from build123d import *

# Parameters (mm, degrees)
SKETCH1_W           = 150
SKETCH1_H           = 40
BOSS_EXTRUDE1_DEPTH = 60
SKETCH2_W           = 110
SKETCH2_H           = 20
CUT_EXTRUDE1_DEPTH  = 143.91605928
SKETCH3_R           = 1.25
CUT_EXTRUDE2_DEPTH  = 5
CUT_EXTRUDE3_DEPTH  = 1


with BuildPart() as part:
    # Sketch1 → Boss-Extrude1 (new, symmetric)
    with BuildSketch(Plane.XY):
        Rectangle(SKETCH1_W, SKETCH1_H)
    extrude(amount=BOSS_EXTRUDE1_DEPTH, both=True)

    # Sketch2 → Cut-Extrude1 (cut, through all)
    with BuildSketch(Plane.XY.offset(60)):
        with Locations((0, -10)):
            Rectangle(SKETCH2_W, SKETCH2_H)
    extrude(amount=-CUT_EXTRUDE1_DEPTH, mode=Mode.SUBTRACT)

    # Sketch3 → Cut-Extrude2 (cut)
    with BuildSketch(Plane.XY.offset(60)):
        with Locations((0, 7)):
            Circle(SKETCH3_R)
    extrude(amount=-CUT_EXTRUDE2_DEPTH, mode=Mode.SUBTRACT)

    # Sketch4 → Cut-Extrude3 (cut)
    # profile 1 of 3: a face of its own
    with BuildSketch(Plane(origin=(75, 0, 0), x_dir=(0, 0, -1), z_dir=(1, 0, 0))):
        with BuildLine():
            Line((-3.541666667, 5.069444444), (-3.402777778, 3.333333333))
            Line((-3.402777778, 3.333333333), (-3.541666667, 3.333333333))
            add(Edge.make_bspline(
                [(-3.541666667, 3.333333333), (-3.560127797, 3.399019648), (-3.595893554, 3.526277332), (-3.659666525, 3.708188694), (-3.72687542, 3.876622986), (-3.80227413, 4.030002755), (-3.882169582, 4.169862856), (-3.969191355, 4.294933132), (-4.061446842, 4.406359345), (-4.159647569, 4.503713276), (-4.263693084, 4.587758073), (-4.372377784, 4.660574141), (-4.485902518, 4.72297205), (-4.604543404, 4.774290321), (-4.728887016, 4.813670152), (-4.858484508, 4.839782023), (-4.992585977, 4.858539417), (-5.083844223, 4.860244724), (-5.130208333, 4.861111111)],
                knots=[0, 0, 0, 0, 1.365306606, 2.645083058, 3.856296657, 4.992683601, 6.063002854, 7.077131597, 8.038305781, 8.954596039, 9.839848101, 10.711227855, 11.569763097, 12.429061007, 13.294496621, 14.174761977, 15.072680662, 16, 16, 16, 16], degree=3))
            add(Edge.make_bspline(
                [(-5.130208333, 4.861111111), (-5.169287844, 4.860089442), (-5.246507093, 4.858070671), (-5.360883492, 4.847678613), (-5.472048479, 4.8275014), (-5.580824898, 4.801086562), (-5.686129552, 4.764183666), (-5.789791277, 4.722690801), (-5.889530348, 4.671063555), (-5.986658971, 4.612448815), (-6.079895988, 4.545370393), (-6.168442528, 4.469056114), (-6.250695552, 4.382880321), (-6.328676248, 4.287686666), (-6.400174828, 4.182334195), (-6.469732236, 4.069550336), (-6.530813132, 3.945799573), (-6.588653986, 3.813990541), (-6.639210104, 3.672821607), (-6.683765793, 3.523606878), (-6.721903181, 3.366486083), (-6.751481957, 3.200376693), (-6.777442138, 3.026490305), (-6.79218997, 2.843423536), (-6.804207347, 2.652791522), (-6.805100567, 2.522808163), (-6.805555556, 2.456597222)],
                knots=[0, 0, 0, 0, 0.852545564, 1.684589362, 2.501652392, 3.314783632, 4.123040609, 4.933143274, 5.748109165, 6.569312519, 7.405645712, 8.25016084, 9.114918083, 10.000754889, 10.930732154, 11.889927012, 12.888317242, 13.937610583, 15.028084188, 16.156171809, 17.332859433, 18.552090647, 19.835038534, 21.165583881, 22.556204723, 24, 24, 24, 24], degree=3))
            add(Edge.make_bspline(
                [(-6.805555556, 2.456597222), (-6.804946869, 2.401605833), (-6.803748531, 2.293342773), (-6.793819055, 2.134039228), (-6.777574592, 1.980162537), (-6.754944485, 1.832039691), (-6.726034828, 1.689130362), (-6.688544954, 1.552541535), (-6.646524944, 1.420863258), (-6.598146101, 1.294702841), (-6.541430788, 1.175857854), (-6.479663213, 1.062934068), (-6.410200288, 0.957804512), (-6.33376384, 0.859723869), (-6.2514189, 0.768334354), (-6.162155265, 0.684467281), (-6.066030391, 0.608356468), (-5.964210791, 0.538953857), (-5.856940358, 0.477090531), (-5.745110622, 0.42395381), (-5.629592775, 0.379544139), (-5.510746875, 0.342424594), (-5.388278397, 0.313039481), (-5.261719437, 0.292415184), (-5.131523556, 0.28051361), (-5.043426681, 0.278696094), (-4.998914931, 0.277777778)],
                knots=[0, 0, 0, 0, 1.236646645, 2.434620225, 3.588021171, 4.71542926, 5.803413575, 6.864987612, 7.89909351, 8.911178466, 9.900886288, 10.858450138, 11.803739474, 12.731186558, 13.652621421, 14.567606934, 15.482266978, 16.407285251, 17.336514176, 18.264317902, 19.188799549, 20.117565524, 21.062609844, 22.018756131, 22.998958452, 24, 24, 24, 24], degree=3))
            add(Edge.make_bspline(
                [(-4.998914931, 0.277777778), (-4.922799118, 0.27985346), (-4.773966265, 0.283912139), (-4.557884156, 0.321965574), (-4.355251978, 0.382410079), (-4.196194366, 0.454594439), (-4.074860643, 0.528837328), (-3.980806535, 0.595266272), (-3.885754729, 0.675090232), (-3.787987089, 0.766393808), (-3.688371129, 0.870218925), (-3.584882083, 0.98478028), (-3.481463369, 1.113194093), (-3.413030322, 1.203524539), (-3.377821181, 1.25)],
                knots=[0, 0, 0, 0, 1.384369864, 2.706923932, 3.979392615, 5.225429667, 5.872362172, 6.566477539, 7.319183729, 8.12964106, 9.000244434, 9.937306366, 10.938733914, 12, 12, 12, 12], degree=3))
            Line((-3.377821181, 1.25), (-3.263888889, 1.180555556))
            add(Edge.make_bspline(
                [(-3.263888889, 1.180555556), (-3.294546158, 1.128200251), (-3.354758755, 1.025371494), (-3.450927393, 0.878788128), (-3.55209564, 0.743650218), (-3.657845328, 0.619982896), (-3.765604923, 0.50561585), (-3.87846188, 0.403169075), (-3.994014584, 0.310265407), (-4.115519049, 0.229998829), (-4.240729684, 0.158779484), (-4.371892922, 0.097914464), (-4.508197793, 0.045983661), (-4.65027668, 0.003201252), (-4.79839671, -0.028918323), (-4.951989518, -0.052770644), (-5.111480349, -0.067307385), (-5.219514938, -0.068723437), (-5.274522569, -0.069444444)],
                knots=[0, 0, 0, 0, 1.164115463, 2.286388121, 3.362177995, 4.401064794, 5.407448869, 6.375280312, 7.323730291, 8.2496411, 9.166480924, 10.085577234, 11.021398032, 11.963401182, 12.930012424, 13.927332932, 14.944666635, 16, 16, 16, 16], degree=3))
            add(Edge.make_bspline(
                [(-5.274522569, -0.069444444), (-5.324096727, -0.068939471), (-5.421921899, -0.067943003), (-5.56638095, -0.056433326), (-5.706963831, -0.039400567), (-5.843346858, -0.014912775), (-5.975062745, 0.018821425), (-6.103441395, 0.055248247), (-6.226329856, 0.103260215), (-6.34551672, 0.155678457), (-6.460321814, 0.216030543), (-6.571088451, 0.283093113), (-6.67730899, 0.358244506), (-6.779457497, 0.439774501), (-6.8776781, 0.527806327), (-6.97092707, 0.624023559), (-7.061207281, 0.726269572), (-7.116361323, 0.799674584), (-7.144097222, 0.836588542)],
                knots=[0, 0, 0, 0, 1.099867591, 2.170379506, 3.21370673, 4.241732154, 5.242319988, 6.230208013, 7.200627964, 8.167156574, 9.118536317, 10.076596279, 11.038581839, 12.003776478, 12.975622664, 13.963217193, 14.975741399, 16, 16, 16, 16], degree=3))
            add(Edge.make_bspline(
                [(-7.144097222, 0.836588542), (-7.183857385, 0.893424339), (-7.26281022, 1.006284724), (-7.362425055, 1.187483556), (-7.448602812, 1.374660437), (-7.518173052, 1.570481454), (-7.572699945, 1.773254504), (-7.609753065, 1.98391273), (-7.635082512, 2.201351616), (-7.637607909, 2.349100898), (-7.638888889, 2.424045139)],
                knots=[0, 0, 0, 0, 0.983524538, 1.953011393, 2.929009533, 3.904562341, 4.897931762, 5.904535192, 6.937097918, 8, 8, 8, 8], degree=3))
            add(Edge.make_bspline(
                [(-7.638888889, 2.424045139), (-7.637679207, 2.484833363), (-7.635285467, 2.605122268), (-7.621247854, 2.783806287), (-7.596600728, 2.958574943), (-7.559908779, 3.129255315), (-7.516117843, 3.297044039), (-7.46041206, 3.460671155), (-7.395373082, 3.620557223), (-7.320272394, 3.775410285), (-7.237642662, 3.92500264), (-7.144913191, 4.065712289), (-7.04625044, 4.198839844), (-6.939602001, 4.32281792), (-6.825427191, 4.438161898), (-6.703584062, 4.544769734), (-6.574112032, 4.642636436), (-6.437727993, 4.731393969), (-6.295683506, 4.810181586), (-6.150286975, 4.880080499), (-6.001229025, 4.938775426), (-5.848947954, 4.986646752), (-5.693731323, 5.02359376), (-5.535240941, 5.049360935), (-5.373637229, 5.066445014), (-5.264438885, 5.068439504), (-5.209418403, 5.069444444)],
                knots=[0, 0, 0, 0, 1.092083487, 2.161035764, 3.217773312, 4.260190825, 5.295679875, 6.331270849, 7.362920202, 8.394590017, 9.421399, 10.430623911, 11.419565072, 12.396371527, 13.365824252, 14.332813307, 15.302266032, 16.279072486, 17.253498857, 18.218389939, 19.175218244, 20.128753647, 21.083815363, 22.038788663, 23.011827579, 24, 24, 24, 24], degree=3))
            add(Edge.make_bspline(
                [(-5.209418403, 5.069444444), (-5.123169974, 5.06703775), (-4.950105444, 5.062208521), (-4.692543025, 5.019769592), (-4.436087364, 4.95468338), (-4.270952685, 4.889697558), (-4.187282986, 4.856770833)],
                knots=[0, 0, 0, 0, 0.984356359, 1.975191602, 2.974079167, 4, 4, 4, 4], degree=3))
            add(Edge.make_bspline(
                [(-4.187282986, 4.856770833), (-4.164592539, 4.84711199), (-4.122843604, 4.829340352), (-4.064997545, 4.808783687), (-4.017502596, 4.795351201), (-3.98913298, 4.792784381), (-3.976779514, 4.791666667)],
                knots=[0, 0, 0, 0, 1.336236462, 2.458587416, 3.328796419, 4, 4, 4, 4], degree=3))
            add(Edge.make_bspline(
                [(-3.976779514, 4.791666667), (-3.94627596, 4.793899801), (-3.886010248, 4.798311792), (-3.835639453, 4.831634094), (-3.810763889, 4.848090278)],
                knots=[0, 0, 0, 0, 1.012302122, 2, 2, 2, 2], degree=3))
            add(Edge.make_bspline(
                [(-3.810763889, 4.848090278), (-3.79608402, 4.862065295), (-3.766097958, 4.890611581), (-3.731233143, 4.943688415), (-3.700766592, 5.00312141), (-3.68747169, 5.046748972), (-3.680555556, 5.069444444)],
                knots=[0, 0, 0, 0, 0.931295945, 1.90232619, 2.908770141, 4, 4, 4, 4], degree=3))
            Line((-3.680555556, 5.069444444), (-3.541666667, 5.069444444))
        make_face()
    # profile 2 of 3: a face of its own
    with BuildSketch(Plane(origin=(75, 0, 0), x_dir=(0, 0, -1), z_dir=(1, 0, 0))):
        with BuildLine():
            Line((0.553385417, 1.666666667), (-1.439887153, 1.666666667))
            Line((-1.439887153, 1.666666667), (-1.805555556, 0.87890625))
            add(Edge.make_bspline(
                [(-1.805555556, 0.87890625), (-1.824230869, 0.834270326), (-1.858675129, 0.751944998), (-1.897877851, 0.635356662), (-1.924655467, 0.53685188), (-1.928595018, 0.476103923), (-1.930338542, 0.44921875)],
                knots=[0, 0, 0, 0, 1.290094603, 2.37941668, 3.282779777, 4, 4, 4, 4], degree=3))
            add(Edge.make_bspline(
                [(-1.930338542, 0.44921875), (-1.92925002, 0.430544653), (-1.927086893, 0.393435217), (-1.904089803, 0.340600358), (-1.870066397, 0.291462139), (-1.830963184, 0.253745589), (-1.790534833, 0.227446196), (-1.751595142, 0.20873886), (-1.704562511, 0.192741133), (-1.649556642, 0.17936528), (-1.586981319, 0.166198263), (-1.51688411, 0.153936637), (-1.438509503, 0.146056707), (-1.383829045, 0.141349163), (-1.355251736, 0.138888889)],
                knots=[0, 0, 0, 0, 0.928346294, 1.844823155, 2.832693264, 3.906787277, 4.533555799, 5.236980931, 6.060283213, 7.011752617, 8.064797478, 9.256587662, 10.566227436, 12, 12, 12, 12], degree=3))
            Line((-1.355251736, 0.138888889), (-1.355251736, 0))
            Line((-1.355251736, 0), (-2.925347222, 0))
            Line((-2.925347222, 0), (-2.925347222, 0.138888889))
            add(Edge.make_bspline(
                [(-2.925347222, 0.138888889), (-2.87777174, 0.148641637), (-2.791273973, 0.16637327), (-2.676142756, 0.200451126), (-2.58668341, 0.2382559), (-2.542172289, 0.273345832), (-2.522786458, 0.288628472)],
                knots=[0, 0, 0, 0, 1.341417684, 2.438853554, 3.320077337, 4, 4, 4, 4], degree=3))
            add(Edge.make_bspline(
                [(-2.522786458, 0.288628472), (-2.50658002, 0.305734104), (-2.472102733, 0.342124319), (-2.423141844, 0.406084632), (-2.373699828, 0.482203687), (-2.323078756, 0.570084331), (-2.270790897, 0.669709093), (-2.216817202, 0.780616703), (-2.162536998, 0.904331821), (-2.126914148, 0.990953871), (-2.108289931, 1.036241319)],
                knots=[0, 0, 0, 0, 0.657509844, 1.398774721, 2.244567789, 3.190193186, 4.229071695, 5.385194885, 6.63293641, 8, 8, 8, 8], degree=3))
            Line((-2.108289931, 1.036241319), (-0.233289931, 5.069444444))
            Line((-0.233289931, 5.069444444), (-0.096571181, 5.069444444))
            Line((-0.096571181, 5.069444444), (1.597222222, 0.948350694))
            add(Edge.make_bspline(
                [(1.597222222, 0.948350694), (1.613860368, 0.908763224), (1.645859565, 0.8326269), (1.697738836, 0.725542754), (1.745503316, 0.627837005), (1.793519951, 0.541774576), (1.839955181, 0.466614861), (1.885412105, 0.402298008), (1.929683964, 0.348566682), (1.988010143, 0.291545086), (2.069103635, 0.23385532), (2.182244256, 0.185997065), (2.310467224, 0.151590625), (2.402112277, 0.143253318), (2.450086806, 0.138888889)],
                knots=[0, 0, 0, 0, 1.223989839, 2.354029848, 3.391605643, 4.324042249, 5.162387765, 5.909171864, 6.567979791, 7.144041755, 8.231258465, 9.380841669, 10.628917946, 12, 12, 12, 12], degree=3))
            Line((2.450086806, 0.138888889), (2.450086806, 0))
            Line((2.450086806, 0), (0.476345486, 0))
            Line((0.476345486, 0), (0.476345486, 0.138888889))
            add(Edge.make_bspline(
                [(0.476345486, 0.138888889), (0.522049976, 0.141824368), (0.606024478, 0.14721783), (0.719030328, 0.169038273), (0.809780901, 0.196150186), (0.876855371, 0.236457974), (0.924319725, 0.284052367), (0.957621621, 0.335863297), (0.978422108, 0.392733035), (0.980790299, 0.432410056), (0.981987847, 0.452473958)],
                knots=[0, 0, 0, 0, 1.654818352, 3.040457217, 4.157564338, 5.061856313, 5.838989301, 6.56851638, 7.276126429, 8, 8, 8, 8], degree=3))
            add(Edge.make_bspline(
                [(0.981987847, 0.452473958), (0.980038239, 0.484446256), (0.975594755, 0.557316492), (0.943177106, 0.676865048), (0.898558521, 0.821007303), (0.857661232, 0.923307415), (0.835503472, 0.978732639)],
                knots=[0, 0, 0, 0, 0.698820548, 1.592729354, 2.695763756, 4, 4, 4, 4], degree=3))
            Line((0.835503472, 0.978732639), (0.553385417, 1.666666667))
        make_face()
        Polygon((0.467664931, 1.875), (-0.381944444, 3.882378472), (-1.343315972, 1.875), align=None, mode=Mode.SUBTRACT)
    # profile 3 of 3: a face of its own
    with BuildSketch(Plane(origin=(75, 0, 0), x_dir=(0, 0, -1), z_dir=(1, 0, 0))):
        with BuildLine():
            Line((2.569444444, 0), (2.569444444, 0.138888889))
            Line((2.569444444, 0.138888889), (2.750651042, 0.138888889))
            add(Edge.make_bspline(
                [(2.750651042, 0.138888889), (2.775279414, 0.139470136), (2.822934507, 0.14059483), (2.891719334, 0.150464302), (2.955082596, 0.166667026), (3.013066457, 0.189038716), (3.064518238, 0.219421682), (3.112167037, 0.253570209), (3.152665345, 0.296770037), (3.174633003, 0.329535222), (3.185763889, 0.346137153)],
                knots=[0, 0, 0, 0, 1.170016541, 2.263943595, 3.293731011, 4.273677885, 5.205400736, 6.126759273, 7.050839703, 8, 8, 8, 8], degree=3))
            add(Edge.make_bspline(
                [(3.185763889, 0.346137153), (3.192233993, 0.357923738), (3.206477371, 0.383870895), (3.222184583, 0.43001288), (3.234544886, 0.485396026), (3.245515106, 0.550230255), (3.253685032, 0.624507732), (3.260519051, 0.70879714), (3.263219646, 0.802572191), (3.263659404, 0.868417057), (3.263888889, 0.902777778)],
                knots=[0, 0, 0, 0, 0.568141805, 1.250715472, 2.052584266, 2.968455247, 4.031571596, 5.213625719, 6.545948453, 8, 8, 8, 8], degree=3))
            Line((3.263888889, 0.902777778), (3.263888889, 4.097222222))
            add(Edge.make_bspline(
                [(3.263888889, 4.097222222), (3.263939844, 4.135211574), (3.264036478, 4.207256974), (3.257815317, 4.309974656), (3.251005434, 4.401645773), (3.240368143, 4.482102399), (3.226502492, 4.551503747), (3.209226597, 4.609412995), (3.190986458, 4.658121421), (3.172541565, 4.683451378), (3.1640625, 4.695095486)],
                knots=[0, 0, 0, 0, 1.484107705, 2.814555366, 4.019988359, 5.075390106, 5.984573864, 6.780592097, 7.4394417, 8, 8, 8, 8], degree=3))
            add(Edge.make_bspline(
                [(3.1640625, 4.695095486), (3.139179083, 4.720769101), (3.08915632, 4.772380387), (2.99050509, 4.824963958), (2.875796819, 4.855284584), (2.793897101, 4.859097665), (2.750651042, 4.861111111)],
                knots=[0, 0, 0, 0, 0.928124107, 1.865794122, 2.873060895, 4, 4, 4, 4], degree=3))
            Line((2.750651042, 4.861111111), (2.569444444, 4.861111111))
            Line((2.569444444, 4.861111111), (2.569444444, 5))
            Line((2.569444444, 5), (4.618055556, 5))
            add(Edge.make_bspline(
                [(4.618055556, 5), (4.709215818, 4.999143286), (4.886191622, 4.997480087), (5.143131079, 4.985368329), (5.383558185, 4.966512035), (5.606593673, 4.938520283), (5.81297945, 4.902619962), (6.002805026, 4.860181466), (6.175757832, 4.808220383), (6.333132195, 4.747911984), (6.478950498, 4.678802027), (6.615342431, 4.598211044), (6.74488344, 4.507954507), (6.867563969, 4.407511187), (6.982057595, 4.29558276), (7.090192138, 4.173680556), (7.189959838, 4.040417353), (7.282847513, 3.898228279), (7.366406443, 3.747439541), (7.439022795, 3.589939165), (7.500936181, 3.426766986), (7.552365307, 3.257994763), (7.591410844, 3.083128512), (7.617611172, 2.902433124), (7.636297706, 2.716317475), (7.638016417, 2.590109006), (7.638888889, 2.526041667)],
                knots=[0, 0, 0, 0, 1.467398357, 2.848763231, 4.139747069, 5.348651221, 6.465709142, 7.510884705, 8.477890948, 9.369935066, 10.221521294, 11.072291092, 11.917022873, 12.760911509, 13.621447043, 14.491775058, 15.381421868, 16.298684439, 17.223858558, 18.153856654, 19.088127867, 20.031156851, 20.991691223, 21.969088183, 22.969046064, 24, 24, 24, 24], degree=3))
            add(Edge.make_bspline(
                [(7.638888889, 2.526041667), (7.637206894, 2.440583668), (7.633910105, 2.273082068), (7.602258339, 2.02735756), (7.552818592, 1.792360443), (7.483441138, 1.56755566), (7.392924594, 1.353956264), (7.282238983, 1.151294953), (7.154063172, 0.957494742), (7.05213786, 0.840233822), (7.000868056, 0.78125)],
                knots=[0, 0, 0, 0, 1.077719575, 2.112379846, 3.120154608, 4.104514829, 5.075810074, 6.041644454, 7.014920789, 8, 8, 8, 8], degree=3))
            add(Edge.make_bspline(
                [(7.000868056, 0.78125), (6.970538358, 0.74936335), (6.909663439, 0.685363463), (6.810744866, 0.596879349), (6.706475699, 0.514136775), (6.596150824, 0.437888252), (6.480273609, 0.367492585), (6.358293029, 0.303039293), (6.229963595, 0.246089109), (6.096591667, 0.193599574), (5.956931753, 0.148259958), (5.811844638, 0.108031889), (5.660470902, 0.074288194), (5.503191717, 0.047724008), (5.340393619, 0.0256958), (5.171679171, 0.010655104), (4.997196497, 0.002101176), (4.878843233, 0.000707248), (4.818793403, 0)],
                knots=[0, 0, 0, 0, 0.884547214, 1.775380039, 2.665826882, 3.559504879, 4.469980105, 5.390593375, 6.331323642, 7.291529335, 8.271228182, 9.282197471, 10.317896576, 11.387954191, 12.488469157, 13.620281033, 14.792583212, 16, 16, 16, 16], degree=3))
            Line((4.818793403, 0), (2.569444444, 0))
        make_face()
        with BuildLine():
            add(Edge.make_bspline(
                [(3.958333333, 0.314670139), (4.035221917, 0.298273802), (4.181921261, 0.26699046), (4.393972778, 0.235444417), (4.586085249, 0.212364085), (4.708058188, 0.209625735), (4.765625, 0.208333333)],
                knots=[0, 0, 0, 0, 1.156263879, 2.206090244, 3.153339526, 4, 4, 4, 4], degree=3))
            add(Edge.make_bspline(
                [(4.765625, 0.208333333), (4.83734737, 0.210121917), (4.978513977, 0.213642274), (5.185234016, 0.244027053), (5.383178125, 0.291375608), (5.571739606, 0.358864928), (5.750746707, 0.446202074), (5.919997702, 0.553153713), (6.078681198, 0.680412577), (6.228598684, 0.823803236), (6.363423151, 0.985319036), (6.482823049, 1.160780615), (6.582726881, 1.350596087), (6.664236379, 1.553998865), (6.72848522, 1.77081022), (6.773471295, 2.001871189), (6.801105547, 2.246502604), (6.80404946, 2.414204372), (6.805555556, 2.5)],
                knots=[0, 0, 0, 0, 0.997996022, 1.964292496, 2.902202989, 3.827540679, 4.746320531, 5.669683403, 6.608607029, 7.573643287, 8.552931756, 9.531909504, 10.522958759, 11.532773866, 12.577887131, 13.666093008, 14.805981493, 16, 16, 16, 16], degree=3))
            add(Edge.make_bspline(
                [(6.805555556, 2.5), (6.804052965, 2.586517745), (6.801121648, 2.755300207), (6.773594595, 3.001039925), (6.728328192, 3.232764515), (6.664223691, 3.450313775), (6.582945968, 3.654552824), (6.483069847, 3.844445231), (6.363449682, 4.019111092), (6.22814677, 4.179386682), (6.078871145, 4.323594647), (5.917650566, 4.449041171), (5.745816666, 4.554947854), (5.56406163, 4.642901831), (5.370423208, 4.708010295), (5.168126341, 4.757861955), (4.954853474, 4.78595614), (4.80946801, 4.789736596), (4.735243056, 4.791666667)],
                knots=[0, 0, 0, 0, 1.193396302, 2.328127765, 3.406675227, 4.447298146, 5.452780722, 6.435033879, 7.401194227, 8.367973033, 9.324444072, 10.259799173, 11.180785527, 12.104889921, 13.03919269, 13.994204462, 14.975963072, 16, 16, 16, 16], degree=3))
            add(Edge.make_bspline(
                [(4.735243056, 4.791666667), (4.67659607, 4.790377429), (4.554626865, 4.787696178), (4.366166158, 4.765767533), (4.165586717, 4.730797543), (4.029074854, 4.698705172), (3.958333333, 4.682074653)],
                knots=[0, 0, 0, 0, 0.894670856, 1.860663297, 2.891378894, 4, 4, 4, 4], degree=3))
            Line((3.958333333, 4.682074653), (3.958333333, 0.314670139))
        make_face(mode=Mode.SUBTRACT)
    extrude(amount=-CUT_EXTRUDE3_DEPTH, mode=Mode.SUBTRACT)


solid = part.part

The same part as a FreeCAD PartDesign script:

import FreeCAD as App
import Part
import Sketcher
from FreeCAD import Vector

doc = App.newDocument("Part")
body = doc.addObject("PartDesign::Body", "Body")

# Sketch on XY plane
sketch1 = doc.addObject("Sketcher::SketchObject", "Sketch")
body.addObject(sketch1)
sketch1.AttachmentSupport = (doc.XY_Plane, [""])
sketch1.MapMode = "FlatFace"
sketch1.addGeometry([
    Part.LineSegment(Vector(-75, 20, 0), Vector(-75, -20, 0)),
    Part.LineSegment(Vector(-75, -20, 0), Vector(75, -20, 0)),
    Part.LineSegment(Vector(75, -20, 0), Vector(75, 20, 0)),
    Part.LineSegment(Vector(75, 20, 0), Vector(-75, 20, 0)),
], False)
sketch1.addConstraint([
    Sketcher.Constraint("Coincident", 0, 2, 1, 1),
    Sketcher.Constraint("Coincident", 1, 2, 2, 1),
    Sketcher.Constraint("Coincident", 2, 2, 3, 1),
    Sketcher.Constraint("Coincident", 3, 2, 0, 1),
    Sketcher.Constraint("Vertical", 0),
    Sketcher.Constraint("Horizontal", 1),
    Sketcher.Constraint("Vertical", 2),
    Sketcher.Constraint("Horizontal", 3),
    Sketcher.Constraint("Symmetric", 0, 2, 2, 2, -1, 1),
    Sketcher.Constraint("DistanceX", 1, 1, 1, 2, 150.0),
    Sketcher.Constraint("DistanceY", 0, 2, 0, 1, 40.0),
])
pad1 = doc.addObject("PartDesign::Pad", "Pad")
body.addObject(pad1)
pad1.Profile = sketch1
pad1.Length = 120
pad1.Midplane = True

# Sketch on XY plane
sketch2 = doc.addObject("Sketcher::SketchObject", "Sketch001")
body.addObject(sketch2)
sketch2.AttachmentSupport = (doc.XY_Plane, [""])
sketch2.MapMode = "FlatFace"
sketch2.AttachmentOffset = App.Placement(Vector(0, 0, 60), App.Rotation())
sketch2.addGeometry([
    Part.LineSegment(Vector(-55, 0, 0), Vector(-55, -20, 0)),
    Part.LineSegment(Vector(-55, -20, 0), Vector(55, -20, 0)),
    Part.LineSegment(Vector(55, -20, 0), Vector(55, 0, 0)),
    Part.LineSegment(Vector(55, 0, 0), Vector(-55, 0, 0)),
], False)
sketch2.addConstraint([
    Sketcher.Constraint("Coincident", 0, 2, 1, 1),
    Sketcher.Constraint("Coincident", 1, 2, 2, 1),
    Sketcher.Constraint("Coincident", 2, 2, 3, 1),
    Sketcher.Constraint("Coincident", 3, 2, 0, 1),
    Sketcher.Constraint("Vertical", 0),
    Sketcher.Constraint("Horizontal", 1),
    Sketcher.Constraint("Vertical", 2),
    Sketcher.Constraint("Horizontal", 3),
    Sketcher.Constraint("Symmetric", 2, 2, 3, 2, -1, 1),
    Sketcher.Constraint("DistanceX", 1, 1, 1, 2, 110.0),
    Sketcher.Constraint("DistanceY", 0, 2, 0, 1, 20.0),
])
pocket1 = doc.addObject("PartDesign::Pocket", "Pocket")
body.addObject(pocket1)
pocket1.Profile = sketch2
pocket1.Type = "ThroughAll"

# Sketch on XY plane
sketch3 = doc.addObject("Sketcher::SketchObject", "Sketch002")
body.addObject(sketch3)
sketch3.AttachmentSupport = (doc.XY_Plane, [""])
sketch3.MapMode = "FlatFace"
sketch3.AttachmentOffset = App.Placement(Vector(0, 0, 60), App.Rotation())
sketch3.addGeometry(Part.Circle(Vector(0, 7, 0), Vector(0, 0, 1), 1.25), False)
sketch3.addConstraint([
    Sketcher.Constraint("PointOnObject", 0, 3, -2),
    Sketcher.Constraint("Diameter", 0, 2.5),
    Sketcher.Constraint("DistanceY", -1, 1, 0, 3, 7.0),
])
pocket2 = doc.addObject("PartDesign::Pocket", "Pocket001")
body.addObject(pocket2)
pocket2.Profile = sketch3
pocket2.Length = 5

# Sketch on YZ plane
sketch4 = doc.addObject("Sketcher::SketchObject", "Sketch003")
body.addObject(sketch4)
sketch4.AttachmentSupport = (doc.YZ_Plane, [""])
sketch4.MapMode = "FlatFace"
sketch4.AttachmentOffset = App.Placement(Vector(0, 0, 75), App.Rotation())
sketch4.addGeometry([
    Part.LineSegment(Vector(3.333333, 3.402778, 0), Vector(5.069444, 3.541667, 0)),  # 0
    Part.LineSegment(Vector(5.069444, 3.541667, 0), Vector(5.069444, 3.680556, 0)),  # 1
    Part.BSplineCurve([Vector(4.84809, 3.810764, 0), Vector(4.862065, 3.796084, 0), Vector(4.890612, 3.766098, 0), Vector(4.943688, 3.731233, 0), Vector(5.003121, 3.700767, 0), Vector(5.046749, 3.687472, 0), Vector(5.069444, 3.680556, 0)], [4, 1, 1, 1, 4], [0, 0.931295945, 1.90232619, 2.908770141, 4], False, 3, [1, 1, 1, 1, 1, 1, 1], False),  # 2
    Part.BSplineCurve([Vector(4.791667, 3.97678, 0), Vector(4.7939, 3.946276, 0), Vector(4.798312, 3.88601, 0), Vector(4.831634, 3.835639, 0), Vector(4.84809, 3.810764, 0)], [4, 1, 4], [0, 1.012302122, 2], False, 3, [1, 1, 1, 1, 1], False),  # 3
    Part.BSplineCurve([Vector(4.856771, 4.187283, 0), Vector(4.847112, 4.164593, 0), Vector(4.82934, 4.122844, 0), Vector(4.808784, 4.064998, 0), Vector(4.795351, 4.017503, 0), Vector(4.792784, 3.989133, 0), Vector(4.791667, 3.97678, 0)], [4, 1, 1, 1, 4], [0, 1.336236462, 2.458587416, 3.328796419, 4], False, 3, [1, 1, 1, 1, 1, 1, 1], False),  # 4
    Part.BSplineCurve([Vector(5.069444, 5.209418, 0), Vector(5.067038, 5.12317, 0), Vector(5.062209, 4.950105, 0), Vector(5.01977, 4.692543, 0), Vector(4.954683, 4.436087, 0), Vector(4.889698, 4.270953, 0), Vector(4.856771, 4.187283, 0)], [4, 1, 1, 1, 4], [0, 0.984356359, 1.975191602, 2.974079167, 4], False, 3, [1, 1, 1, 1, 1, 1, 1], False),  # 5
    Part.BSplineCurve([Vector(2.424045, 7.638889, 0), Vector(2.484833, 7.637679, 0), Vector(2.605122, 7.635285, 0), Vector(2.783806, 7.621248, 0), Vector(2.958575, 7.596601, 0), Vector(3.129255, 7.559909, 0), Vector(3.297044, 7.516118, 0), Vector(3.460671, 7.460412, 0), Vector(3.620557, 7.395373, 0), Vector(3.77541, 7.320272, 0), Vector(3.925003, 7.237643, 0), Vector(4.065712, 7.144913, 0), Vector(4.19884, 7.04625, 0), Vector(4.322818, 6.939602, 0), Vector(4.438162, 6.825427, 0), Vector(4.54477, 6.703584, 0), Vector(4.642636, 6.574112, 0), Vector(4.731394, 6.437728, 0), Vector(4.810182, 6.295684, 0), Vector(4.88008, 6.150287, 0), Vector(4.938775, 6.001229, 0), Vector(4.986647, 5.848948, 0), Vector(5.023594, 5.693731, 0), Vector(5.049361, 5.535241, 0), Vector(5.066445, 5.373637, 0), Vector(5.06844, 5.264439, 0), Vector(5.069444, 5.209418, 0)], [4, 1, 1, 1, 1, 1, 1, 1, 1, 1, 1, 1, 1, 1, 1, 1, 1, 1, 1, 1, 1, 1, 1, 1, 4], [0, 1.092083487, 2.161035764, 3.217773312, 4.260190825, 5.295679875, 6.331270849, 7.362920202, 8.394590017, 9.421399, 10.430623911, 11.419565072, 12.396371527, 13.365824252, 14.332813307, 15.302266032, 16.279072486, 17.253498857, 18.218389939, 19.175218244, 20.128753647, 21.083815363, 22.038788663, 23.011827579, 24], False, 3, [1, 1, 1, 1, 1, 1, 1, 1, 1, 1, 1, 1, 1, 1, 1, 1, 1, 1, 1, 1, 1, 1, 1, 1, 1, 1, 1], False),  # 6
    Part.BSplineCurve([Vector(0.836589, 7.144097, 0), Vector(0.893424, 7.183857, 0), Vector(1.006285, 7.26281, 0), Vector(1.187484, 7.362425, 0), Vector(1.37466, 7.448603, 0), Vector(1.570481, 7.518173, 0), Vector(1.773255, 7.5727, 0), Vector(1.983913, 7.609753, 0), Vector(2.201352, 7.635083, 0), Vector(2.349101, 7.637608, 0), Vector(2.424045, 7.638889, 0)], [4, 1, 1, 1, 1, 1, 1, 1, 4], [0, 0.983524538, 1.953011393, 2.929009533, 3.904562341, 4.897931762, 5.904535192, 6.937097918, 8], False, 3, [1, 1, 1, 1, 1, 1, 1, 1, 1, 1, 1], False),  # 7
    Part.BSplineCurve([Vector(-0.069444, 5.274523, 0), Vector(-0.068939, 5.324097, 0), Vector(-0.067943, 5.421922, 0), Vector(-0.056433, 5.566381, 0), Vector(-0.039401, 5.706964, 0), Vector(-0.014913, 5.843347, 0), Vector(0.018821, 5.975063, 0), Vector(0.055248, 6.103441, 0), Vector(0.10326, 6.22633, 0), Vector(0.155678, 6.345517, 0), Vector(0.216031, 6.460322, 0), Vector(0.283093, 6.571088, 0), Vector(0.358245, 6.677309, 0), Vector(0.439775, 6.779457, 0), Vector(0.527806, 6.877678, 0), Vector(0.624024, 6.970927, 0), Vector(0.72627, 7.061207, 0), Vector(0.799675, 7.116361, 0), Vector(0.836589, 7.144097, 0)], [4, 1, 1, 1, 1, 1, 1, 1, 1, 1, 1, 1, 1, 1, 1, 1, 4], [0, 1.099867591, 2.170379506, 3.21370673, 4.241732154, 5.242319988, 6.230208013, 7.200627964, 8.167156574, 9.118536317, 10.076596279, 11.038581839, 12.003776478, 12.975622664, 13.963217193, 14.975741399, 16], False, 3, [1, 1, 1, 1, 1, 1, 1, 1, 1, 1, 1, 1, 1, 1, 1, 1, 1, 1, 1], False),  # 8
    Part.BSplineCurve([Vector(1.180556, 3.263889, 0), Vector(1.1282, 3.294546, 0), Vector(1.025371, 3.354759, 0), Vector(0.878788, 3.450927, 0), Vector(0.74365, 3.552096, 0), Vector(0.619983, 3.657845, 0), Vector(0.505616, 3.765605, 0), Vector(0.403169, 3.878462, 0), Vector(0.310265, 3.994015, 0), Vector(0.229999, 4.115519, 0), Vector(0.158779, 4.24073, 0), Vector(0.097914, 4.371893, 0), Vector(0.045984, 4.508198, 0), Vector(0.003201, 4.650277, 0), Vector(-0.028918, 4.798397, 0), Vector(-0.052771, 4.95199, 0), Vector(-0.067307, 5.11148, 0), Vector(-0.068723, 5.219515, 0), Vector(-0.069444, 5.274523, 0)], [4, 1, 1, 1, 1, 1, 1, 1, 1, 1, 1, 1, 1, 1, 1, 1, 4], [0, 1.164115463, 2.286388121, 3.362177995, 4.401064794, 5.407448869, 6.375280312, 7.323730291, 8.2496411, 9.166480924, 10.085577234, 11.021398032, 11.963401182, 12.930012424, 13.927332932, 14.944666635, 16], False, 3, [1, 1, 1, 1, 1, 1, 1, 1, 1, 1, 1, 1, 1, 1, 1, 1, 1, 1, 1], False),  # 9
    Part.LineSegment(Vector(1.180556, 3.263889, 0), Vector(1.25, 3.377821, 0)),  # 10
    Part.BSplineCurve([Vector(0.277778, 4.998915, 0), Vector(0.279853, 4.922799, 0), Vector(0.283912, 4.773966, 0), Vector(0.321966, 4.557884, 0), Vector(0.38241, 4.355252, 0), Vector(0.454594, 4.196194, 0), Vector(0.528837, 4.074861, 0), Vector(0.595266, 3.980807, 0), Vector(0.67509, 3.885755, 0), Vector(0.766394, 3.787987, 0), Vector(0.870219, 3.688371, 0), Vector(0.98478, 3.584882, 0), Vector(1.113194, 3.481463, 0), Vector(1.203525, 3.41303, 0), Vector(1.25, 3.377821, 0)], [4, 1, 1, 1, 1, 1, 1, 1, 1, 1, 1, 1, 4], [0, 1.384369864, 2.706923932, 3.979392615, 5.225429667, 5.872362172, 6.566477539, 7.319183729, 8.12964106, 9.000244434, 9.937306366, 10.938733914, 12], False, 3, [1, 1, 1, 1, 1, 1, 1, 1, 1, 1, 1, 1, 1, 1, 1], False),  # 11
    Part.BSplineCurve([Vector(2.456597, 6.805556, 0), Vector(2.401606, 6.804947, 0), Vector(2.293343, 6.803749, 0), Vector(2.134039, 6.793819, 0), Vector(1.980163, 6.777575, 0), Vector(1.83204, 6.754944, 0), Vector(1.68913, 6.726035, 0), Vector(1.552542, 6.688545, 0), Vector(1.420863, 6.646525, 0), Vector(1.294703, 6.598146, 0), Vector(1.175858, 6.541431, 0), Vector(1.062934, 6.479663, 0), Vector(0.957805, 6.4102, 0), Vector(0.859724, 6.333764, 0), Vector(0.768334, 6.251419, 0), Vector(0.684467, 6.162155, 0), Vector(0.608356, 6.06603, 0), Vector(0.538954, 5.964211, 0), Vector(0.477091, 5.85694, 0), Vector(0.423954, 5.745111, 0), Vector(0.379544, 5.629593, 0), Vector(0.342425, 5.510747, 0), Vector(0.313039, 5.388278, 0), Vector(0.292415, 5.261719, 0), Vector(0.280514, 5.131524, 0), Vector(0.278696, 5.043427, 0), Vector(0.277778, 4.998915, 0)], [4, 1, 1, 1, 1, 1, 1, 1, 1, 1, 1, 1, 1, 1, 1, 1, 1, 1, 1, 1, 1, 1, 1, 1, 4], [0, 1.236646645, 2.434620225, 3.588021171, 4.71542926, 5.803413575, 6.864987612, 7.89909351, 8.911178466, 9.900886288, 10.858450138, 11.803739474, 12.731186558, 13.652621421, 14.567606934, 15.482266978, 16.407285251, 17.336514176, 18.264317902, 19.188799549, 20.117565524, 21.062609844, 22.018756131, 22.998958452, 24], False, 3, [1, 1, 1, 1, 1, 1, 1, 1, 1, 1, 1, 1, 1, 1, 1, 1, 1, 1, 1, 1, 1, 1, 1, 1, 1, 1, 1], False),  # 12
    Part.BSplineCurve([Vector(4.861111, 5.130208, 0), Vector(4.860089, 5.169288, 0), Vector(4.858071, 5.246507, 0), Vector(4.847679, 5.360883, 0), Vector(4.827501, 5.472048, 0), Vector(4.801087, 5.580825, 0), Vector(4.764184, 5.68613, 0), Vector(4.722691, 5.789791, 0), Vector(4.671064, 5.88953, 0), Vector(4.612449, 5.986659, 0), Vector(4.54537, 6.079896, 0), Vector(4.469056, 6.168443, 0), Vector(4.38288, 6.250696, 0), Vector(4.287687, 6.328676, 0), Vector(4.182334, 6.400175, 0), Vector(4.06955, 6.469732, 0), Vector(3.9458, 6.530813, 0), Vector(3.813991, 6.588654, 0), Vector(3.672822, 6.63921, 0), Vector(3.523607, 6.683766, 0), Vector(3.366486, 6.721903, 0), Vector(3.200377, 6.751482, 0), Vector(3.02649, 6.777442, 0), Vector(2.843424, 6.79219, 0), Vector(2.652792, 6.804207, 0), Vector(2.522808, 6.805101, 0), Vector(2.456597, 6.805556, 0)], [4, 1, 1, 1, 1, 1, 1, 1, 1, 1, 1, 1, 1, 1, 1, 1, 1, 1, 1, 1, 1, 1, 1, 1, 4], [0, 0.852545564, 1.684589362, 2.501652392, 3.314783632, 4.123040609, 4.933143274, 5.748109165, 6.569312519, 7.405645712, 8.25016084, 9.114918083, 10.000754889, 10.930732154, 11.889927012, 12.888317242, 13.937610583, 15.028084188, 16.156171809, 17.332859433, 18.552090647, 19.835038534, 21.165583881, 22.556204723, 24], False, 3, [1, 1, 1, 1, 1, 1, 1, 1, 1, 1, 1, 1, 1, 1, 1, 1, 1, 1, 1, 1, 1, 1, 1, 1, 1, 1, 1], False),  # 13
    Part.BSplineCurve([Vector(3.333333, 3.541667, 0), Vector(3.39902, 3.560128, 0), Vector(3.526277, 3.595894, 0), Vector(3.708189, 3.659667, 0), Vector(3.876623, 3.726875, 0), Vector(4.030003, 3.802274, 0), Vector(4.169863, 3.88217, 0), Vector(4.294933, 3.969191, 0), Vector(4.406359, 4.061447, 0), Vector(4.503713, 4.159648, 0), Vector(4.587758, 4.263693, 0), Vector(4.660574, 4.372378, 0), Vector(4.722972, 4.485903, 0), Vector(4.77429, 4.604543, 0), Vector(4.81367, 4.728887, 0), Vector(4.839782, 4.858485, 0), Vector(4.858539, 4.992586, 0), Vector(4.860245, 5.083844, 0), Vector(4.861111, 5.130208, 0)], [4, 1, 1, 1, 1, 1, 1, 1, 1, 1, 1, 1, 1, 1, 1, 1, 4], [0, 1.365306606, 2.645083058, 3.856296657, 4.992683601, 6.063002854, 7.077131597, 8.038305781, 8.954596039, 9.839848101, 10.711227855, 11.569763097, 12.429061007, 13.294496621, 14.174761977, 15.072680662, 16], False, 3, [1, 1, 1, 1, 1, 1, 1, 1, 1, 1, 1, 1, 1, 1, 1, 1, 1, 1, 1], False),  # 14
    Part.LineSegment(Vector(3.333333, 3.541667, 0), Vector(3.333333, 3.402778, 0)),  # 15
    Part.LineSegment(Vector(1.666667, 1.439887, 0), Vector(1.666667, -0.553385, 0)),  # 16
    Part.LineSegment(Vector(1.666667, -0.553385, 0), Vector(0.978733, -0.835503, 0)),  # 17
    Part.BSplineCurve([Vector(0.452474, -0.981988, 0), Vector(0.484446, -0.980038, 0), Vector(0.557316, -0.975595, 0), Vector(0.676865, -0.943177, 0), Vector(0.821007, -0.898559, 0), Vector(0.923307, -0.857661, 0), Vector(0.978733, -0.835503, 0)], [4, 1, 1, 1, 4], [0, 0.698820548, 1.592729354, 2.695763756, 4], False, 3, [1, 1, 1, 1, 1, 1, 1], False),  # 18
    Part.BSplineCurve([Vector(0.138889, -0.476345, 0), Vector(0.141824, -0.52205, 0), Vector(0.147218, -0.606024, 0), Vector(0.169038, -0.71903, 0), Vector(0.19615, -0.809781, 0), Vector(0.236458, -0.876855, 0), Vector(0.284052, -0.92432, 0), Vector(0.335863, -0.957622, 0), Vector(0.392733, -0.978422, 0), Vector(0.43241, -0.98079, 0), Vector(0.452474, -0.981988, 0)], [4, 1, 1, 1, 1, 1, 1, 1, 4], [0, 1.654818352, 3.040457217, 4.157564338, 5.061856313, 5.838989301, 6.56851638, 7.276126429, 8], False, 3, [1, 1, 1, 1, 1, 1, 1, 1, 1, 1, 1], False),  # 19
    Part.LineSegment(Vector(0.138889, -0.476345, 0), Vector(0, -0.476345, 0)),  # 20
    Part.LineSegment(Vector(0, -0.476345, 0), Vector(0, -2.450087, 0)),  # 21
    Part.LineSegment(Vector(0, -2.450087, 0), Vector(0.138889, -2.450087, 0)),  # 22
    Part.BSplineCurve([Vector(0.948351, -1.597222, 0), Vector(0.908763, -1.61386, 0), Vector(0.832627, -1.64586, 0), Vector(0.725543, -1.697739, 0), Vector(0.627837, -1.745503, 0), Vector(0.541775, -1.79352, 0), Vector(0.466615, -1.839955, 0), Vector(0.402298, -1.885412, 0), Vector(0.348567, -1.929684, 0), Vector(0.291545, -1.98801, 0), Vector(0.233855, -2.069104, 0), Vector(0.185997, -2.182244, 0), Vector(0.151591, -2.310467, 0), Vector(0.143253, -2.402112, 0), Vector(0.138889, -2.450087, 0)], [4, 1, 1, 1, 1, 1, 1, 1, 1, 1, 1, 1, 4], [0, 1.223989839, 2.354029848, 3.391605643, 4.324042249, 5.162387765, 5.909171864, 6.567979791, 7.144041755, 8.231258465, 9.380841669, 10.628917946, 12], False, 3, [1, 1, 1, 1, 1, 1, 1, 1, 1, 1, 1, 1, 1, 1, 1], False),  # 23
    Part.LineSegment(Vector(0.948351, -1.597222, 0), Vector(5.069444, 0.096571, 0)),  # 24
    Part.LineSegment(Vector(5.069444, 0.096571, 0), Vector(5.069444, 0.23329, 0)),  # 25
    Part.LineSegment(Vector(5.069444, 0.23329, 0), Vector(1.036241, 2.10829, 0)),  # 26
    Part.BSplineCurve([Vector(0.288628, 2.522786, 0), Vector(0.305734, 2.50658, 0), Vector(0.342124, 2.472103, 0), Vector(0.406085, 2.423142, 0), Vector(0.482204, 2.3737, 0), Vector(0.570084, 2.323079, 0), Vector(0.669709, 2.270791, 0), Vector(0.780617, 2.216817, 0), Vector(0.904332, 2.162537, 0), Vector(0.990954, 2.126914, 0), Vector(1.036241, 2.10829, 0)], [4, 1, 1, 1, 1, 1, 1, 1, 4], [0, 0.657509844, 1.398774721, 2.244567789, 3.190193186, 4.229071695, 5.385194885, 6.63293641, 8], False, 3, [1, 1, 1, 1, 1, 1, 1, 1, 1, 1, 1], False),  # 27
    Part.BSplineCurve([Vector(0.138889, 2.925347, 0), Vector(0.148642, 2.877772, 0), Vector(0.166373, 2.791274, 0), Vector(0.200451, 2.676143, 0), Vector(0.238256, 2.586683, 0), Vector(0.273346, 2.542172, 0), Vector(0.288628, 2.522786, 0)], [4, 1, 1, 1, 4], [0, 1.341417684, 2.438853554, 3.320077337, 4], False, 3, [1, 1, 1, 1, 1, 1, 1], False),  # 28
    Part.LineSegment(Vector(0.138889, 2.925347, 0), Vector(0, 2.925347, 0)),  # 29
    Part.LineSegment(Vector(0, 2.925347, 0), Vector(0, 1.355252, 0)),  # 30
    Part.LineSegment(Vector(0, 1.355252, 0), Vector(0.138889, 1.355252, 0)),  # 31
    Part.BSplineCurve([Vector(0.449219, 1.930339, 0), Vector(0.430545, 1.92925, 0), Vector(0.393435, 1.927087, 0), Vector(0.3406, 1.90409, 0), Vector(0.291462, 1.870066, 0), Vector(0.253746, 1.830963, 0), Vector(0.227446, 1.790535, 0), Vector(0.208739, 1.751595, 0), Vector(0.192741, 1.704563, 0), Vector(0.179365, 1.649557, 0), Vector(0.166198, 1.586981, 0), Vector(0.153937, 1.516884, 0), Vector(0.146057, 1.43851, 0), Vector(0.141349, 1.383829, 0), Vector(0.138889, 1.355252, 0)], [4, 1, 1, 1, 1, 1, 1, 1, 1, 1, 1, 1, 4], [0, 0.928346294, 1.844823155, 2.832693264, 3.906787277, 4.533555799, 5.236980931, 6.060283213, 7.011752617, 8.064797478, 9.256587662, 10.566227436, 12], False, 3, [1, 1, 1, 1, 1, 1, 1, 1, 1, 1, 1, 1, 1, 1, 1], False),  # 32
    Part.BSplineCurve([Vector(0.878906, 1.805556, 0), Vector(0.83427, 1.824231, 0), Vector(0.751945, 1.858675, 0), Vector(0.635357, 1.897878, 0), Vector(0.536852, 1.924655, 0), Vector(0.476104, 1.928595, 0), Vector(0.449219, 1.930339, 0)], [4, 1, 1, 1, 4], [0, 1.290094603, 2.37941668, 3.282779777, 4], False, 3, [1, 1, 1, 1, 1, 1, 1], False),  # 33
    Part.LineSegment(Vector(0.878906, 1.805556, 0), Vector(1.666667, 1.439887, 0)),  # 34
    Part.LineSegment(Vector(1.875, -0.467665, 0), Vector(1.875, 1.343316, 0)),  # 35
    Part.LineSegment(Vector(1.875, 1.343316, 0), Vector(3.882378, 0.381944, 0)),  # 36
    Part.LineSegment(Vector(3.882378, 0.381944, 0), Vector(1.875, -0.467665, 0)),  # 37
    Part.LineSegment(Vector(0.138889, -2.569444, 0), Vector(0, -2.569444, 0)),  # 38
    Part.LineSegment(Vector(0, -2.569444, 0), Vector(0, -4.818793, 0)),  # 39
    Part.BSplineCurve([Vector(0.78125, -7.000868, 0), Vector(0.749363, -6.970538, 0), Vector(0.685363, -6.909663, 0), Vector(0.596879, -6.810745, 0), Vector(0.514137, -6.706476, 0), Vector(0.437888, -6.596151, 0), Vector(0.367493, -6.480274, 0), Vector(0.303039, -6.358293, 0), Vector(0.246089, -6.229964, 0), Vector(0.1936, -6.096592, 0), Vector(0.14826, -5.956932, 0), Vector(0.108032, -5.811845, 0), Vector(0.074288, -5.660471, 0), Vector(0.047724, -5.503192, 0), Vector(0.025696, -5.340394, 0), Vector(0.010655, -5.171679, 0), Vector(0.002101, -4.997196, 0), Vector(0.000707, -4.878843, 0), Vector(0, -4.818793, 0)], [4, 1, 1, 1, 1, 1, 1, 1, 1, 1, 1, 1, 1, 1, 1, 1, 4], [0, 0.884547214, 1.775380039, 2.665826882, 3.559504879, 4.469980105, 5.390593375, 6.331323642, 7.291529335, 8.271228182, 9.282197471, 10.317896576, 11.387954191, 12.488469157, 13.620281033, 14.792583212, 16], False, 3, [1, 1, 1, 1, 1, 1, 1, 1, 1, 1, 1, 1, 1, 1, 1, 1, 1, 1, 1], False),  # 40
    Part.BSplineCurve([Vector(2.526042, -7.638889, 0), Vector(2.440584, -7.637207, 0), Vector(2.273082, -7.63391, 0), Vector(2.027358, -7.602258, 0), Vector(1.79236, -7.552819, 0), Vector(1.567556, -7.483441, 0), Vector(1.353956, -7.392925, 0), Vector(1.151295, -7.282239, 0), Vector(0.957495, -7.154063, 0), Vector(0.840234, -7.052138, 0), Vector(0.78125, -7.000868, 0)], [4, 1, 1, 1, 1, 1, 1, 1, 4], [0, 1.077719575, 2.112379846, 3.120154608, 4.104514829, 5.075810074, 6.041644454, 7.014920789, 8], False, 3, [1, 1, 1, 1, 1, 1, 1, 1, 1, 1, 1], False),  # 41
    Part.BSplineCurve([Vector(5, -4.618056, 0), Vector(4.999143, -4.709216, 0), Vector(4.99748, -4.886192, 0), Vector(4.985368, -5.143131, 0), Vector(4.966512, -5.383558, 0), Vector(4.93852, -5.606594, 0), Vector(4.90262, -5.812979, 0), Vector(4.860181, -6.002805, 0), Vector(4.80822, -6.175758, 0), Vector(4.747912, -6.333132, 0), Vector(4.678802, -6.47895, 0), Vector(4.598211, -6.615342, 0), Vector(4.507955, -6.744883, 0), Vector(4.407511, -6.867564, 0), Vector(4.295583, -6.982058, 0), Vector(4.173681, -7.090192, 0), Vector(4.040417, -7.18996, 0), Vector(3.898228, -7.282848, 0), Vector(3.74744, -7.366406, 0), Vector(3.589939, -7.439023, 0), Vector(3.426767, -7.500936, 0), Vector(3.257995, -7.552365, 0), Vector(3.083129, -7.591411, 0), Vector(2.902433, -7.617611, 0), Vector(2.716317, -7.636298, 0), Vector(2.590109, -7.638016, 0), Vector(2.526042, -7.638889, 0)], [4, 1, 1, 1, 1, 1, 1, 1, 1, 1, 1, 1, 1, 1, 1, 1, 1, 1, 1, 1, 1, 1, 1, 1, 4], [0, 1.467398357, 2.848763231, 4.139747069, 5.348651221, 6.465709142, 7.510884705, 8.477890948, 9.369935066, 10.221521294, 11.072291092, 11.917022873, 12.760911509, 13.621447043, 14.491775058, 15.381421868, 16.298684439, 17.223858558, 18.153856654, 19.088127867, 20.031156851, 20.991691223, 21.969088183, 22.969046064, 24], False, 3, [1, 1, 1, 1, 1, 1, 1, 1, 1, 1, 1, 1, 1, 1, 1, 1, 1, 1, 1, 1, 1, 1, 1, 1, 1, 1, 1], False),  # 42
    Part.LineSegment(Vector(5, -4.618056, 0), Vector(5, -2.569444, 0)),  # 43
    Part.LineSegment(Vector(5, -2.569444, 0), Vector(4.861111, -2.569444, 0)),  # 44
    Part.LineSegment(Vector(4.861111, -2.569444, 0), Vector(4.861111, -2.750651, 0)),  # 45
    Part.BSplineCurve([Vector(4.695095, -3.164062, 0), Vector(4.720769, -3.139179, 0), Vector(4.77238, -3.089156, 0), Vector(4.824964, -2.990505, 0), Vector(4.855285, -2.875797, 0), Vector(4.859098, -2.793897, 0), Vector(4.861111, -2.750651, 0)], [4, 1, 1, 1, 4], [0, 0.928124107, 1.865794122, 2.873060895, 4], False, 3, [1, 1, 1, 1, 1, 1, 1], False),  # 46
    Part.BSplineCurve([Vector(4.097222, -3.263889, 0), Vector(4.135212, -3.26394, 0), Vector(4.207257, -3.264036, 0), Vector(4.309975, -3.257815, 0), Vector(4.401646, -3.251005, 0), Vector(4.482102, -3.240368, 0), Vector(4.551504, -3.226502, 0), Vector(4.609413, -3.209227, 0), Vector(4.658121, -3.190986, 0), Vector(4.683451, -3.172542, 0), Vector(4.695095, -3.164062, 0)], [4, 1, 1, 1, 1, 1, 1, 1, 4], [0, 1.484107705, 2.814555366, 4.019988359, 5.075390106, 5.984573864, 6.780592097, 7.4394417, 8], False, 3, [1, 1, 1, 1, 1, 1, 1, 1, 1, 1, 1], False),  # 47
    Part.LineSegment(Vector(4.097222, -3.263889, 0), Vector(0.902778, -3.263889, 0)),  # 48
    Part.BSplineCurve([Vector(0.346137, -3.185764, 0), Vector(0.357924, -3.192234, 0), Vector(0.383871, -3.206477, 0), Vector(0.430013, -3.222185, 0), Vector(0.485396, -3.234545, 0), Vector(0.55023, -3.245515, 0), Vector(0.624508, -3.253685, 0), Vector(0.708797, -3.260519, 0), Vector(0.802572, -3.26322, 0), Vector(0.868417, -3.263659, 0), Vector(0.902778, -3.263889, 0)], [4, 1, 1, 1, 1, 1, 1, 1, 4], [0, 0.568141805, 1.250715472, 2.052584266, 2.968455247, 4.031571596, 5.213625719, 6.545948453, 8], False, 3, [1, 1, 1, 1, 1, 1, 1, 1, 1, 1, 1], False),  # 49
    Part.BSplineCurve([Vector(0.138889, -2.750651, 0), Vector(0.13947, -2.775279, 0), Vector(0.140595, -2.822935, 0), Vector(0.150464, -2.891719, 0), Vector(0.166667, -2.955083, 0), Vector(0.189039, -3.013066, 0), Vector(0.219422, -3.064518, 0), Vector(0.25357, -3.112167, 0), Vector(0.29677, -3.152665, 0), Vector(0.329535, -3.174633, 0), Vector(0.346137, -3.185764, 0)], [4, 1, 1, 1, 1, 1, 1, 1, 4], [0, 1.170016541, 2.263943595, 3.293731011, 4.273677885, 5.205400736, 6.126759273, 7.050839703, 8], False, 3, [1, 1, 1, 1, 1, 1, 1, 1, 1, 1, 1], False),  # 50
    Part.LineSegment(Vector(0.138889, -2.750651, 0), Vector(0.138889, -2.569444, 0)),  # 51
    Part.LineSegment(Vector(0.31467, -3.958333, 0), Vector(4.682075, -3.958333, 0)),  # 52
    Part.BSplineCurve([Vector(4.791667, -4.735243, 0), Vector(4.790377, -4.676596, 0), Vector(4.787696, -4.554627, 0), Vector(4.765768, -4.366166, 0), Vector(4.730798, -4.165587, 0), Vector(4.698705, -4.029075, 0), Vector(4.682075, -3.958333, 0)], [4, 1, 1, 1, 4], [0, 0.894670856, 1.860663297, 2.891378894, 4], False, 3, [1, 1, 1, 1, 1, 1, 1], False),  # 53
    Part.BSplineCurve([Vector(2.5, -6.805556, 0), Vector(2.586518, -6.804053, 0), Vector(2.7553, -6.801122, 0), Vector(3.00104, -6.773595, 0), Vector(3.232765, -6.728328, 0), Vector(3.450314, -6.664224, 0), Vector(3.654553, -6.582946, 0), Vector(3.844445, -6.48307, 0), Vector(4.019111, -6.36345, 0), Vector(4.179387, -6.228147, 0), Vector(4.323595, -6.078871, 0), Vector(4.449041, -5.917651, 0), Vector(4.554948, -5.745817, 0), Vector(4.642902, -5.564062, 0), Vector(4.70801, -5.370423, 0), Vector(4.757862, -5.168126, 0), Vector(4.785956, -4.954853, 0), Vector(4.789737, -4.809468, 0), Vector(4.791667, -4.735243, 0)], [4, 1, 1, 1, 1, 1, 1, 1, 1, 1, 1, 1, 1, 1, 1, 1, 4], [0, 1.193396302, 2.328127765, 3.406675227, 4.447298146, 5.452780722, 6.435033879, 7.401194227, 8.367973033, 9.324444072, 10.259799173, 11.180785527, 12.104889921, 13.03919269, 13.994204462, 14.975963072, 16], False, 3, [1, 1, 1, 1, 1, 1, 1, 1, 1, 1, 1, 1, 1, 1, 1, 1, 1, 1, 1], False),  # 54
    Part.BSplineCurve([Vector(0.208333, -4.765625, 0), Vector(0.210122, -4.837347, 0), Vector(0.213642, -4.978514, 0), Vector(0.244027, -5.185234, 0), Vector(0.291376, -5.383178, 0), Vector(0.358865, -5.57174, 0), Vector(0.446202, -5.750747, 0), Vector(0.553154, -5.919998, 0), Vector(0.680413, -6.078681, 0), Vector(0.823803, -6.228599, 0), Vector(0.985319, -6.363423, 0), Vector(1.160781, -6.482823, 0), Vector(1.350596, -6.582727, 0), Vector(1.553999, -6.664236, 0), Vector(1.77081, -6.728485, 0), Vector(2.001871, -6.773471, 0), Vector(2.246503, -6.801106, 0), Vector(2.414204, -6.804049, 0), Vector(2.5, -6.805556, 0)], [4, 1, 1, 1, 1, 1, 1, 1, 1, 1, 1, 1, 1, 1, 1, 1, 4], [0, 0.997996022, 1.964292496, 2.902202989, 3.827540679, 4.746320531, 5.669683403, 6.608607029, 7.573643287, 8.552931756, 9.531909504, 10.522958759, 11.532773866, 12.577887131, 13.666093008, 14.805981493, 16], False, 3, [1, 1, 1, 1, 1, 1, 1, 1, 1, 1, 1, 1, 1, 1, 1, 1, 1, 1, 1], False),  # 55
    Part.BSplineCurve([Vector(0.31467, -3.958333, 0), Vector(0.298274, -4.035222, 0), Vector(0.26699, -4.181921, 0), Vector(0.235444, -4.393973, 0), Vector(0.212364, -4.586085, 0), Vector(0.209626, -4.708058, 0), Vector(0.208333, -4.765625, 0)], [4, 1, 1, 1, 4], [0, 1.156263879, 2.206090244, 3.153339526, 4], False, 3, [1, 1, 1, 1, 1, 1, 1], False),  # 56
], False)
sketch4.addConstraint([
    Sketcher.Constraint("Block", 2),
    Sketcher.Constraint("Block", 3),
    Sketcher.Constraint("Block", 4),
    Sketcher.Constraint("Block", 5),
    Sketcher.Constraint("Block", 6),
    Sketcher.Constraint("Block", 7),
    Sketcher.Constraint("Block", 8),
    Sketcher.Constraint("Block", 9),
    Sketcher.Constraint("Block", 11),
    Sketcher.Constraint("Block", 12),
    Sketcher.Constraint("Block", 13),
    Sketcher.Constraint("Block", 14),
    Sketcher.Constraint("Block", 18),
    Sketcher.Constraint("Block", 19),
    Sketcher.Constraint("Block", 23),
    Sketcher.Constraint("Block", 27),
    Sketcher.Constraint("Block", 28),
    Sketcher.Constraint("Block", 32),
    Sketcher.Constraint("Block", 33),
    Sketcher.Constraint("Block", 40),
    Sketcher.Constraint("Block", 41),
    Sketcher.Constraint("Block", 42),
    Sketcher.Constraint("Block", 46),
    Sketcher.Constraint("Block", 47),
    Sketcher.Constraint("Block", 49),
    Sketcher.Constraint("Block", 50),
    Sketcher.Constraint("Block", 53),
    Sketcher.Constraint("Block", 54),
    Sketcher.Constraint("Block", 55),
    Sketcher.Constraint("Block", 56),
    Sketcher.Constraint("Coincident", 0, 2, 1, 1),
    Sketcher.Constraint("Coincident", 1, 2, 2, 2),
    Sketcher.Constraint("Coincident", 9, 1, 10, 1),
    Sketcher.Constraint("Coincident", 10, 2, 11, 2),
    Sketcher.Constraint("Coincident", 14, 1, 15, 1),
    Sketcher.Constraint("Coincident", 15, 2, 0, 1),
    Sketcher.Constraint("Coincident", 16, 2, 17, 1),
    Sketcher.Constraint("Coincident", 17, 2, 18, 2),
    Sketcher.Constraint("Coincident", 19, 1, 20, 1),
    Sketcher.Constraint("Coincident", 20, 2, 21, 1),
    Sketcher.Constraint("Coincident", 21, 2, 22, 1),
    Sketcher.Constraint("Coincident", 22, 2, 23, 2),
    Sketcher.Constraint("Coincident", 23, 1, 24, 1),
    Sketcher.Constraint("Coincident", 24, 2, 25, 1),
    Sketcher.Constraint("Coincident", 25, 2, 26, 1),
    Sketcher.Constraint("Coincident", 26, 2, 27, 2),
    Sketcher.Constraint("Coincident", 28, 1, 29, 1),
    Sketcher.Constraint("Coincident", 29, 2, 30, 1),
    Sketcher.Constraint("Coincident", 30, 2, 31, 1),
    Sketcher.Constraint("Coincident", 31, 2, 32, 2),
    Sketcher.Constraint("Coincident", 33, 1, 34, 1),
    Sketcher.Constraint("Coincident", 34, 2, 16, 1),
    Sketcher.Constraint("Coincident", 35, 2, 36, 1),
    Sketcher.Constraint("Coincident", 36, 2, 37, 1),
    Sketcher.Constraint("Coincident", 37, 2, 35, 1),
    Sketcher.Constraint("Coincident", 38, 2, 39, 1),
    Sketcher.Constraint("Coincident", 39, 2, 40, 2),
    Sketcher.Constraint("Coincident", 42, 1, 43, 1),
    Sketcher.Constraint("Coincident", 43, 2, 44, 1),
    Sketcher.Constraint("Coincident", 44, 2, 45, 1),
    Sketcher.Constraint("Coincident", 45, 2, 46, 2),
    Sketcher.Constraint("Coincident", 47, 1, 48, 1),
    Sketcher.Constraint("Coincident", 48, 2, 49, 2),
    Sketcher.Constraint("Coincident", 50, 1, 51, 1),
    Sketcher.Constraint("Coincident", 51, 2, 38, 1),
    Sketcher.Constraint("Coincident", 52, 2, 53, 2),
    Sketcher.Constraint("Coincident", 56, 1, 52, 1),
    Sketcher.Constraint("Vertical", 1),
    Sketcher.Constraint("Vertical", 15),
    Sketcher.Constraint("Vertical", 16),
    Sketcher.Constraint("Horizontal", 20),
    Sketcher.Constraint("Vertical", 21),
    Sketcher.Constraint("Horizontal", 22),
    Sketcher.Constraint("Vertical", 25),
    Sketcher.Constraint("Horizontal", 29),
    Sketcher.Constraint("Vertical", 30),
    Sketcher.Constraint("Horizontal", 31),
    Sketcher.Constraint("Vertical", 35),
    Sketcher.Constraint("Horizontal", 38),
    Sketcher.Constraint("Vertical", 39),
    Sketcher.Constraint("Vertical", 43),
    Sketcher.Constraint("Horizontal", 44),
    Sketcher.Constraint("Vertical", 45),
    Sketcher.Constraint("Vertical", 51),
    Sketcher.Constraint("PointOnObject", 20, 2, -2),
    Sketcher.Constraint("PointOnObject", 29, 2, -2),
    Sketcher.Constraint("DistanceX", -1, 1, 35, 2, 1.875),
    Sketcher.Constraint("DistanceY", 1, 1, 1, 2, 0.138889),
    Sketcher.Constraint("DistanceY", 15, 2, 15, 1, 0.138889),
    Sketcher.Constraint("DistanceY", 25, 1, 25, 2, 0.136719),
    Sketcher.Constraint("DistanceY", 35, 1, 35, 2, 1.810981),
    Sketcher.Constraint("DistanceY", 39, 2, 39, 1, 2.249349),
    Sketcher.Constraint("DistanceY", 43, 1, 43, 2, 2.048611),
    Sketcher.Constraint("DistanceY", 21, 2, 16, 2, 1.896701),
    Sketcher.Constraint("DistanceY", 16, 2, 35, 2, 1.896701),
    Sketcher.Constraint("Distance", 37, 2.179772),
    Sketcher.Constraint("DistanceY", 16, 2, 16, 1, 1.993273),
    Sketcher.Constraint("DistanceY", -1, 1, 24, 2, 0.096571),
    Sketcher.Constraint("DistanceX", -1, 1, 36, 2, 3.882378),
    Sketcher.Constraint("DistanceX", 15, 2, 24, 2, 1.736111),
    Sketcher.Constraint("DistanceX", 16, 2, 36, 2, 2.215712),
])
pocket3 = doc.addObject("PartDesign::Pocket", "Pocket002")
body.addObject(pocket3)
pocket3.Profile = sketch4
pocket3.Length = 1

doc.recompute()
